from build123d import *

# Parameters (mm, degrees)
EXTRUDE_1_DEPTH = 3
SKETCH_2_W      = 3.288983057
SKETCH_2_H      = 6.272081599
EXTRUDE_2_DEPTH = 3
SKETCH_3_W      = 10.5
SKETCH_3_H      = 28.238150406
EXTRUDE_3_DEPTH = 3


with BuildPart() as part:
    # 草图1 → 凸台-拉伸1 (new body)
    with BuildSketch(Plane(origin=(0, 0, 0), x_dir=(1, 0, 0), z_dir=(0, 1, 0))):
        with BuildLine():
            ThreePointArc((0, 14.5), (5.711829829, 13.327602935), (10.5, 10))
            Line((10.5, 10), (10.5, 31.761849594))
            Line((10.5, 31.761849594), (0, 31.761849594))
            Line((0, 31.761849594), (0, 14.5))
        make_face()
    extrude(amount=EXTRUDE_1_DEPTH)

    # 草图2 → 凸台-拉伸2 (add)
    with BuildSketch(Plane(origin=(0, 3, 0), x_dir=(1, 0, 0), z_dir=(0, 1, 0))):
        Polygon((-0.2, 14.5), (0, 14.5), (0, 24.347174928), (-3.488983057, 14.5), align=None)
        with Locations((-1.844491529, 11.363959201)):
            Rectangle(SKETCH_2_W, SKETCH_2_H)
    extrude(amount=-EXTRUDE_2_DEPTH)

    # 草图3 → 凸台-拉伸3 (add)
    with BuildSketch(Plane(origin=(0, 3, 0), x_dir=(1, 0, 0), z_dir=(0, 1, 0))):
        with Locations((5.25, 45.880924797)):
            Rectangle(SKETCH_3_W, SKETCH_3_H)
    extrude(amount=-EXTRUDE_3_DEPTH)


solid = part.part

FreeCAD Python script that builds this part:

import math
import FreeCAD as App
import Part
import Sketcher

V = App.Vector

doc = App.newDocument("Part")
body = doc.addObject("PartDesign::Body", "Body")

# Sketch on XZ plane
sketch1 = doc.addObject("Sketcher::SketchObject", "Sketch")
body.addObject(sketch1)
sketch1.AttachmentSupport = (doc.XZ_Plane, [""])
sketch1.MapMode = "FlatFace"
sketch1.addGeometry([
    Part.ArcOfCircle(Part.Circle(V(0, 0, 0), V(0, 0, 1), 14.5), math.radians(-90), math.radians(-43.602819)),
    Part.LineSegment(V(10.5, -10, 0), V(10.5, -31.76185, 0)),
    Part.LineSegment(V(10.5, -31.76185, 0), V(0, -31.76185, 0)),
    Part.LineSegment(V(0, -31.76185, 0), V(0, -14.5, 0)),
], False)
sketch1.addConstraint([
    Sketcher.Constraint("Coincident", 0, 2, 1, 1),
    Sketcher.Constraint("Coincident", 1, 2, 2, 1),
    Sketcher.Constraint("Coincident", 2, 2, 3, 1),
    Sketcher.Constraint("Coincident", 3, 2, 0, 1),
    Sketcher.Constraint("Vertical", 1),
    Sketcher.Constraint("Horizontal", 2),
    Sketcher.Constraint("Vertical", 3),
    Sketcher.Constraint("Coincident", 0, 3, -1, 1),
    Sketcher.Constraint("PointOnObject", 2, 2, -2),
    Sketcher.Constraint("Radius", 0, 14.5),
    Sketcher.Constraint("DistanceX", 2, 2, 2, 1, 10.5),
    Sketcher.Constraint("DistanceY", 1, 2, 1, 1, 21.76185),
])
pad1 = doc.addObject("PartDesign::Pad", "Pad")
body.addObject(pad1)
pad1.Profile = sketch1
pad1.Length = 3
pad1.Reversed = True

# Sketch on XZ plane
sketch2 = doc.addObject("Sketcher::SketchObject", "Sketch001")
body.addObject(sketch2)
sketch2.AttachmentSupport = (doc.XZ_Plane, [""])
sketch2.MapMode = "FlatFace"
sketch2.AttachmentOffset = App.Placement(V(0, 0, -3), App.Rotation())
sketch2.addGeometry([
    Part.LineSegment(V(0, -14.5, 0), V(0, -24.347175, 0)),  # 0
    Part.LineSegment(V(0, -24.347175, 0), V(-3.488983, -14.5, 0)),  # 1
    Part.LineSegment(V(-3.488983, -14.5, 0), V(-3.488983, -8.227918, 0)),  # 2
    Part.LineSegment(V(-3.488983, -8.227918, 0), V(-0.2, -8.227918, 0)),  # 3
    Part.LineSegment(V(-0.2, -8.227918, 0), V(-0.2, -14.5, 0)),  # 4
    Part.LineSegment(V(-0.2, -14.5, 0), V(0, -14.5, 0)),  # 5
], False)
sketch2.addConstraint([
    Sketcher.Constraint("Coincident", 0, 2, 1, 1),
    Sketcher.Constraint("Coincident", 1, 2, 2, 1),
    Sketcher.Constraint("Coincident", 2, 2, 3, 1),
    Sketcher.Constraint("Coincident", 3, 2, 4, 1),
    Sketcher.Constraint("Coincident", 4, 2, 5, 1),
    Sketcher.Constraint("Coincident", 5, 2, 0, 1),
    Sketcher.Constraint("Vertical", 0),
    Sketcher.Constraint("Vertical", 2),
    Sketcher.Constraint("Horizontal", 3),
    Sketcher.Constraint("Vertical", 4),
    Sketcher.Constraint("Horizontal", 5),
    Sketcher.Constraint("PointOnObject", 0, 2, -2),
    Sketcher.Constraint("Horizontal", 1, 2, 4, 2),
    Sketcher.Constraint("DistanceX", 5, 1, 5, 2, 0.2),
    Sketcher.Constraint("DistanceY", 1, 2, -1, 1, 14.5),
    Sketcher.Constraint("DistanceY", 2, 1, 2, 2, 6.272082),
    Sketcher.Constraint("DistanceX", 3, 1, 3, 2, 3.288983),
    Sketcher.Constraint("DistanceY", 0, 2, 0, 1, 9.847175),
])
pad2 = doc.addObject("PartDesign::Pad", "Pad001")
body.addObject(pad2)
pad2.Profile = sketch2
pad2.Length = 3

# Sketch on XZ plane
sketch3 = doc.addObject("Sketcher::SketchObject", "Sketch002")
body.addObject(sketch3)
sketch3.AttachmentSupport = (doc.XZ_Plane, [""])
sketch3.MapMode = "FlatFace"
sketch3.AttachmentOffset = App.Placement(V(0, 0, -3), App.Rotation())
sketch3.addGeometry([
    Part.LineSegment(V(0, -60, 0), V(0, -31.76185, 0)),
    Part.LineSegment(V(0, -31.76185, 0), V(10.5, -31.76185, 0)),
    Part.LineSegment(V(10.5, -31.76185, 0), V(10.5, -60, 0)),
    Part.LineSegment(V(10.5, -60, 0), V(0, -60, 0)),
], False)
sketch3.addConstraint([
    Sketcher.Constraint("Coincident", 0, 2, 1, 1),
    Sketcher.Constraint("Coincident", 1, 2, 2, 1),
    Sketcher.Constraint("Coincident", 2, 2, 3, 1),
    Sketcher.Constraint("Coincident", 3, 2, 0, 1),
    Sketcher.Constraint("Vertical", 0),
    Sketcher.Constraint("Horizontal", 1),
    Sketcher.Constraint("Vertical", 2),
    Sketcher.Constraint("Horizontal", 3),
    Sketcher.Constraint("PointOnObject", 0, 2, -2),
    Sketcher.Constraint("DistanceX", 1, 1, 1, 2, 10.5),
    Sketcher.Constraint("DistanceY", 2, 2, -1, 1, 60.0),
    Sketcher.Constraint("DistanceY", 0, 1, 0, 2, 28.23815),
])
pad3 = doc.addObject("PartDesign::Pad", "Pad002")
body.addObject(pad3)
pad3.Profile = sketch3
pad3.Length = 3

doc.recompute()
